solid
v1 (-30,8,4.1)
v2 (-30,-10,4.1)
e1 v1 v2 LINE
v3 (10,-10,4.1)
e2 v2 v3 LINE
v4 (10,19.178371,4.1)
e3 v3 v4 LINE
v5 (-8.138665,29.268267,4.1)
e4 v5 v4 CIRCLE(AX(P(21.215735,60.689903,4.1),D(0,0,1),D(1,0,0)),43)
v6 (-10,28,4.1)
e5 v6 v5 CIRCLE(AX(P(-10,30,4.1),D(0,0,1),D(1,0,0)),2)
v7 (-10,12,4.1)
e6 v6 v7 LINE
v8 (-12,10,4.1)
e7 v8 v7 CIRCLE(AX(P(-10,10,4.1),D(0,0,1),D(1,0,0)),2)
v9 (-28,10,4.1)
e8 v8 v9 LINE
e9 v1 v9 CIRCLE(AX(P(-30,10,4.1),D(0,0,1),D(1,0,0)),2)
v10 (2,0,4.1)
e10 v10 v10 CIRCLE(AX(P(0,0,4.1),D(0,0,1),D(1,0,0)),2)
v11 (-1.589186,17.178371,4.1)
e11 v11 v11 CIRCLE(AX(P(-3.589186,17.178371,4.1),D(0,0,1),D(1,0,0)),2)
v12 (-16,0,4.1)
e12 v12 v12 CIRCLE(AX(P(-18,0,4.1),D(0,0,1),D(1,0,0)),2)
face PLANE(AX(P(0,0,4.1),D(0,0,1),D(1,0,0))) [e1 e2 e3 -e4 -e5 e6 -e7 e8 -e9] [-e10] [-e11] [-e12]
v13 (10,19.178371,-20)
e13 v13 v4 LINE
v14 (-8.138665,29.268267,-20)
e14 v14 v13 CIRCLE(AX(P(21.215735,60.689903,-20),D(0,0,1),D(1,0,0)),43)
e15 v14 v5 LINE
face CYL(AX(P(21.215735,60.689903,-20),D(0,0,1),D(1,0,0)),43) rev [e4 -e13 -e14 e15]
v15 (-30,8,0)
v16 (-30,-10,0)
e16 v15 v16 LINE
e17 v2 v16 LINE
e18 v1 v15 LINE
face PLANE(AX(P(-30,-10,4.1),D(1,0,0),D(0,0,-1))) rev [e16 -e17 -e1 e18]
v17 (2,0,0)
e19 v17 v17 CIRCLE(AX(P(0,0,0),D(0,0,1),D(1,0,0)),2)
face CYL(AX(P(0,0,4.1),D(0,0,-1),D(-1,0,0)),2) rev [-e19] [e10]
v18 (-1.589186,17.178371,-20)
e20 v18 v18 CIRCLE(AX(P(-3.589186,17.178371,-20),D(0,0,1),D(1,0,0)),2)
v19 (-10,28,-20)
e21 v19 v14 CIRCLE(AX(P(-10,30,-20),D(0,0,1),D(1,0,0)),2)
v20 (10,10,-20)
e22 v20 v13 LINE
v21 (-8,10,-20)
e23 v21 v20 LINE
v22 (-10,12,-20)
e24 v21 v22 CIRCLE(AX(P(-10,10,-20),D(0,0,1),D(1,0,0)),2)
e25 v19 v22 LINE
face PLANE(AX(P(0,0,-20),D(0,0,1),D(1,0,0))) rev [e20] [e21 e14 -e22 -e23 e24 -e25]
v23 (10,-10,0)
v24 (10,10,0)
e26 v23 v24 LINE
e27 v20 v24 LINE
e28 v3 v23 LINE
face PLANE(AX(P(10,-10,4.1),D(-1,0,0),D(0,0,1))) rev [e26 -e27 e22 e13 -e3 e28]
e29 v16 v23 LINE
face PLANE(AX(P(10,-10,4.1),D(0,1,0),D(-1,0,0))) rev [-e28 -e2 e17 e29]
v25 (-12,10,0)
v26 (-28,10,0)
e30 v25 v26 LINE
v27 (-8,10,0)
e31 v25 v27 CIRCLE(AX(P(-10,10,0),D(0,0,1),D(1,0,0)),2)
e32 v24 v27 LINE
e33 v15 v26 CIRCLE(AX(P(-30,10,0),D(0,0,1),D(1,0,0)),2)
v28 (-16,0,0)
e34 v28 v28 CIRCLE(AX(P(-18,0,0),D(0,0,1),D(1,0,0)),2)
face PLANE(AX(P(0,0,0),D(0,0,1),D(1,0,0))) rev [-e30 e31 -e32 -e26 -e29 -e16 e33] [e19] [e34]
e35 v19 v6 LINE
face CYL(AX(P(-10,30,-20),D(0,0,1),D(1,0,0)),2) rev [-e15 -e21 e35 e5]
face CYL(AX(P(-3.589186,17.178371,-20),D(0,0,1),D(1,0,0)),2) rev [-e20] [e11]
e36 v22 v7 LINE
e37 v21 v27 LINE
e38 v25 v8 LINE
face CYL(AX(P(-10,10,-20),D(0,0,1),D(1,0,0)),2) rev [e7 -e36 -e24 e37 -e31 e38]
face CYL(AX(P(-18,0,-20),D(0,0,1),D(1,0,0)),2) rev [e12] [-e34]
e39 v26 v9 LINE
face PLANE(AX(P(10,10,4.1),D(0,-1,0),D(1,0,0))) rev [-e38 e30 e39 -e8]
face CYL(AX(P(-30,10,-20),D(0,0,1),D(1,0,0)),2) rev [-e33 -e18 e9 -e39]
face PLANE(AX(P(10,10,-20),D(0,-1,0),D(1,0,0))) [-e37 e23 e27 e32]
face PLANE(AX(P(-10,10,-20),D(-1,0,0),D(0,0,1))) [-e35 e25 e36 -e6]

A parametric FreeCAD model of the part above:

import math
import FreeCAD as App
import Part
import Sketcher


def add_polygon(sketch, points):
    """Adds a closed chain of lines whose ends are joined by coincident constraints."""
    first, n = sketch.GeometryCount, len(points)
    for a, b in zip(points, points[1:] + points[:1]):
        sketch.addGeometry(Part.LineSegment(App.Vector(*a, 0), App.Vector(*b, 0)), False)
    for i in range(n):
        sketch.addConstraint(Sketcher.Constraint("Coincident", first + i, 2, first + (i + 1) % n, 1))

doc = App.newDocument("Part")
body = doc.addObject("PartDesign::Body", "Body")

sketch1 = body.newObject("Sketcher::SketchObject", "Sketch")
sketch1.AttachmentSupport = (doc.getObject("XY_Plane"), [""])
sketch1.MapMode = "FlatFace"
add_polygon(sketch1, [(-30, 10), (-30, -10), (10, -10), (10, 10)])
sketch1.addGeometry(Part.Circle(App.Vector(0, 0, 0), App.Vector(0, 0, 1), 2), False)
sketch1.addConstraint([
    Sketcher.Constraint("Vertical", 0),
    Sketcher.Constraint("Horizontal", 1),
    Sketcher.Constraint("Vertical", 2),
    Sketcher.Constraint("Horizontal", 3),
    Sketcher.Constraint("Coincident", 4, 3, -1, 1),
    Sketcher.Constraint("Diameter", 4, 4.0),
    Sketcher.Constraint("DistanceX", 1, 1, 1, 2, 40.0),
    Sketcher.Constraint("DistanceY", 0, 2, 0, 1, 20.0),
    Sketcher.Constraint("DistanceX", 0, 2, -1, 1, 30.0),
    Sketcher.Constraint("DistanceY", 0, 2, -1, 1, 10.0),
])
pad1 = body.newObject("PartDesign::Pad", "Pad")
pad1.Profile = sketch1
pad1.Length = 4.1

sketch2 = body.newObject("Sketcher::SketchObject", "Sketch001")
sketch2.AttachmentSupport = (doc.getObject("XY_Plane"), [""])
sketch2.MapMode = "FlatFace"
sketch2.AttachmentOffset = App.Placement(App.Vector(0, 0, 4.1), App.Rotation())
add_polygon(sketch2, [(-10, 30), (-10, 10), (10, 10), (10, 30)])
sketch2.addConstraint([
    Sketcher.Constraint("Vertical", 0),
    Sketcher.Constraint("Horizontal", 1),
    Sketcher.Constraint("Vertical", 2),
    Sketcher.Constraint("Horizontal", 3),
    Sketcher.Constraint("Equal", 3, 0),
    Sketcher.Constraint("DistanceX", 1, 1, 1, 2, 20.0),
    Sketcher.Constraint("DistanceX", 0, 2, -1, 1, 10.0),
    Sketcher.Constraint("DistanceY", -1, 1, 0, 2, 10.0),
])
pad2 = body.newObject("PartDesign::Pad", "Pad001")
pad2.Profile = sketch2
pad2.Length = 24.1
pad2.Reversed = True

sketch3 = body.newObject("Sketcher::SketchObject", "Sketch002")
sketch3.AttachmentSupport = (doc.getObject("XY_Plane"), [""])
sketch3.MapMode = "FlatFace"
sketch3.AttachmentOffset = App.Placement(App.Vector(0, 0, 4.1), App.Rotation())
sketch3.addGeometry([
    Part.Circle(App.Vector(-18, 0, 0), App.Vector(0, 0, 1), 2),
    Part.Circle(App.Vector(-30, 10, 0), App.Vector(0, 0, 1), 2),
    Part.Circle(App.Vector(-3.6, 17.2, 0), App.Vector(0, 0, 1), 2),
    Part.LineSegment(App.Vector(-12, 30.4, 0), App.Vector(-10, 28, 0)),
    Part.ArcOfCircle(Part.Circle(App.Vector(-10, 30, 0), App.Vector(0, 0, 1), 2), math.radians(-90), math.radians(-21)),
    Part.ArcOfCircle(Part.Circle(App.Vector(21.2, 60.7, 0), App.Vector(0, 0, 1), 43), math.radians(-133), math.radians(-105)),
    Part.LineSegment(App.Vector(10, 19.2, 0), App.Vector(10, 30, 0)),
    Part.LineSegment(App.Vector(10, 30, 0), App.Vector(-8, 30, 0)),
    Part.ArcOfCircle(Part.Circle(App.Vector(-10, 30, 0), App.Vector(0, 0, 1), 2), math.radians(0), math.radians(167)),
    Part.LineSegment(App.Vector(-10, 12, 0), App.Vector(-12, 10, 0)),
    Part.ArcOfCircle(Part.Circle(App.Vector(-10, 10, 0), App.Vector(0, 0, 1), 2), math.radians(180), math.radians(450)),
], False)
sketch3.addConstraint([
    Sketcher.Constraint("Coincident", 3, 2, 4, 1),
    Sketcher.Constraint("Coincident", 4, 2, 5, 1),
    Sketcher.Constraint("Coincident", 5, 2, 6, 1),
    Sketcher.Constraint("Coincident", 6, 2, 7, 1),
    Sketcher.Constraint("Coincident", 7, 2, 8, 1),
    Sketcher.Constraint("Coincident", 8, 2, 3, 1),
    Sketcher.Constraint("Coincident", 9, 1, 10, 2),
    Sketcher.Constraint("Coincident", 10, 1, 9, 2),
    Sketcher.Constraint("Vertical", 6),
    Sketcher.Constraint("Horizontal", 7),
    Sketcher.Constraint("Coincident", 8, 3, 4, 3),
    Sketcher.Constraint("Equal", 0, 1),
    Sketcher.Constraint("Equal", 1, 2),
    Sketcher.Constraint("Equal", 2, 4),
    Sketcher.Constraint("Equal", 4, 8),
    Sketcher.Constraint("Equal", 8, 10),
    Sketcher.Constraint("PointOnObject", 0, 3, -1),
    Sketcher.Constraint("Horizontal", 1, 3, 10, 3),
    Sketcher.Constraint("Horizontal", 8, 3, 6, 2),
    Sketcher.Constraint("Horizontal", 1, 3, 10, 1),
    Sketcher.Constraint("Vertical", 8, 3, 10, 3),
    Sketcher.Constraint("Vertical", 10, 3, 3, 2),
    Sketcher.Constraint("Vertical", 3, 2, 9, 1),
    Sketcher.Constraint("Diameter", 0, 4.0),
    Sketcher.Constraint("Radius", 5, 43.0),
    Sketcher.Constraint("DistanceX", 7, 2, 7, 1, 18.0),
    Sketcher.Constraint("DistanceX", 0, 3, -1, 1, 18.0),
    Sketcher.Constraint("DistanceX", 1, 3, -1, 1, 30.0),
    Sketcher.Constraint("DistanceY", -1, 1, 1, 3, 10.0),
    Sketcher.Constraint("DistanceX", 4, 3, -1, 1, 10.0),
    Sketcher.Constraint("DistanceY", -1, 1, 4, 3, 30.0),
    Sketcher.Constraint("DistanceY", 2, 3, 5, 2, 2.0),
    Sketcher.Constraint("DistanceY", 6, 1, 6, 2, 10.821629),
    Sketcher.Constraint("DistanceY", -1, 1, 8, 2, 30.43314),
    Sketcher.Constraint("DistanceX", 2, 3, 5, 3, 24.80492),
    Sketcher.Constraint("DistanceX", 4, 2, 2, 3, 4.54948),
])
pocket1 = body.newObject("PartDesign::Pocket", "Pocket")
pocket1.Profile = sketch3
pocket1.Type = "ThroughAll"

doc.recompute()
